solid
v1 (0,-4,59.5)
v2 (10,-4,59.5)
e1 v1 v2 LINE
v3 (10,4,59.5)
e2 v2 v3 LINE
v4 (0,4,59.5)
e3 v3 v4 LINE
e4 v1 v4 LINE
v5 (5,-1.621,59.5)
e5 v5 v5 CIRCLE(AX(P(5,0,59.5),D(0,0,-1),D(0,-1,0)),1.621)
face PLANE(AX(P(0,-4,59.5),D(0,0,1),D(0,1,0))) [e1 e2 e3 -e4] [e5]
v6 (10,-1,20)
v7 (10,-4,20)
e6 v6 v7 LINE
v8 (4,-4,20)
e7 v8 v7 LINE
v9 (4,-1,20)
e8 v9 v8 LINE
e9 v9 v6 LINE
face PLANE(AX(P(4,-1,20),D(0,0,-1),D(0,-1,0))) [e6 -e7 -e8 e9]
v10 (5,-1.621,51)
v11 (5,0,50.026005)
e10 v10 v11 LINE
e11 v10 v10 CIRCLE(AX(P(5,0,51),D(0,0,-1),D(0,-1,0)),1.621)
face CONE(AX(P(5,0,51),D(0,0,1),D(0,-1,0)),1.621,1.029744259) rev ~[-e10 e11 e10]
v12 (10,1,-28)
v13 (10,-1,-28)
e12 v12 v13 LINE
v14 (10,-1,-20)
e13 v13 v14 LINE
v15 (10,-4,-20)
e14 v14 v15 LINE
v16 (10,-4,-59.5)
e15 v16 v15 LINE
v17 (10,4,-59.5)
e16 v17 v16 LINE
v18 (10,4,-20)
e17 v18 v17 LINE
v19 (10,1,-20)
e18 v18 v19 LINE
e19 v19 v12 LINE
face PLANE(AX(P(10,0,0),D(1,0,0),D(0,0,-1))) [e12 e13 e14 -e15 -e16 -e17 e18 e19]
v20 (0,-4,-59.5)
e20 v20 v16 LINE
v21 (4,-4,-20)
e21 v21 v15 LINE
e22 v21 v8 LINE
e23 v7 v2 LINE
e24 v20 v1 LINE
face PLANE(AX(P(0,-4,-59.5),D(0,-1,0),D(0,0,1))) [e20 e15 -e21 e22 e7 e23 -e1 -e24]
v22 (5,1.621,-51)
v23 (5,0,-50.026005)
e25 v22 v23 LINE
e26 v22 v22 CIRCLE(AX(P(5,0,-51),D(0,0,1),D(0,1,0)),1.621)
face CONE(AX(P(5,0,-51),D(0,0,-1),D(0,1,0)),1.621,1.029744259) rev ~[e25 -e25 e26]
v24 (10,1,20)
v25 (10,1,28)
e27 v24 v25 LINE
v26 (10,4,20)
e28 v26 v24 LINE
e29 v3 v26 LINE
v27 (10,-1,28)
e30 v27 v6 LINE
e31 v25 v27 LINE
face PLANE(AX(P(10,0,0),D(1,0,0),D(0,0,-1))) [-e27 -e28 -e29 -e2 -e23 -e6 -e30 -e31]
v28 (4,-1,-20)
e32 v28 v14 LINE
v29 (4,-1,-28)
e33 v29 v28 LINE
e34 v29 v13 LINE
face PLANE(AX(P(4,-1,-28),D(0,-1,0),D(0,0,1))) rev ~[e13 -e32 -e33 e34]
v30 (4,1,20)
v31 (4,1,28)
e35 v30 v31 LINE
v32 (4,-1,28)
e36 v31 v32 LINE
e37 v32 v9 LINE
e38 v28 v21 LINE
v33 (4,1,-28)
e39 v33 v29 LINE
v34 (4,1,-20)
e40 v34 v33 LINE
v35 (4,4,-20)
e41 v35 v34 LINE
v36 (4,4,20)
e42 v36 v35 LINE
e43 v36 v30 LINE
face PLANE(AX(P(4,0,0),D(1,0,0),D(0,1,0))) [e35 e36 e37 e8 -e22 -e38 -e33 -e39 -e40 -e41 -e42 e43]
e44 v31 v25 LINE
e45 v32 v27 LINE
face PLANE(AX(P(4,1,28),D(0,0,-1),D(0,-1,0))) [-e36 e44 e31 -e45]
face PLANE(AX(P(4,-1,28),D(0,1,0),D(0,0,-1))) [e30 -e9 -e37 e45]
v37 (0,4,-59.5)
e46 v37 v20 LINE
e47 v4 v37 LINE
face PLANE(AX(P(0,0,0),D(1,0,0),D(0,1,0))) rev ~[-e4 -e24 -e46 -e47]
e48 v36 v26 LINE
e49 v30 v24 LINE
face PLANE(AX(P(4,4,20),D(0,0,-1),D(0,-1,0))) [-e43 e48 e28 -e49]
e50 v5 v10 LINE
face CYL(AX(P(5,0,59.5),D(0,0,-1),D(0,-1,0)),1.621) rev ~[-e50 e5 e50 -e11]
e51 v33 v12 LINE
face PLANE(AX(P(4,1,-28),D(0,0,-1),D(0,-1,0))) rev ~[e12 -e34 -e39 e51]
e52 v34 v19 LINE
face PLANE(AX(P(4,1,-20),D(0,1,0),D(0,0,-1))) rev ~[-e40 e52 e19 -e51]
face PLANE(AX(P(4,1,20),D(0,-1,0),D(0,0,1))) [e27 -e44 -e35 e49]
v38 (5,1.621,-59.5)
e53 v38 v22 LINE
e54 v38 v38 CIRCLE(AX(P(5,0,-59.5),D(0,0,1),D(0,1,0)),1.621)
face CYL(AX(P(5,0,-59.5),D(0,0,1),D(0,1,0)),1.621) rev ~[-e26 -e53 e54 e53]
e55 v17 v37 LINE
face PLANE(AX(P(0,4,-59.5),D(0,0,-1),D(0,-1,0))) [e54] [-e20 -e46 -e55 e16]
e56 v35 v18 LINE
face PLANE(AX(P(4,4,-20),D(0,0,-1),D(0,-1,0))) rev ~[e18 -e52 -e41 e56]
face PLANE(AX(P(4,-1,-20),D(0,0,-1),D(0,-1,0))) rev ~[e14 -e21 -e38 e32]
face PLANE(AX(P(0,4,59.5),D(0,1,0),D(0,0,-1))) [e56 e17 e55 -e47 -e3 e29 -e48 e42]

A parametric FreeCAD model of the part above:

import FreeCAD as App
import Part
import Sketcher
from FreeCAD import Vector
Q = App.Units.Quantity

doc = App.newDocument("Part")
body = doc.addObject("PartDesign::Body", "Body")

# Sketch on YZ plane
sketch1 = body.newObject("Sketcher::SketchObject", "Sketch")
sketch1.AttachmentSupport = (doc.getObject("YZ_Plane"), [""])
sketch1.MapMode = "FlatFace"
sketch1.addGeometry(Part.LineSegment(Vector(4, 59.5, 0), Vector(-4, 59.5, 0)), False)
sketch1.addGeometry(Part.LineSegment(Vector(-4, 59.5, 0), Vector(-4, -59.5, 0)), False)
sketch1.addGeometry(Part.LineSegment(Vector(-4, -59.5, 0), Vector(4, -59.5, 0)), False)
sketch1.addGeometry(Part.LineSegment(Vector(4, -59.5, 0), Vector(4, 59.5, 0)), False)
sketch1.addConstraint(Sketcher.Constraint("Coincident", 0, 2, 1, 1))
sketch1.addConstraint(Sketcher.Constraint("Coincident", 1, 2, 2, 1))
sketch1.addConstraint(Sketcher.Constraint("Coincident", 2, 2, 3, 1))
sketch1.addConstraint(Sketcher.Constraint("Coincident", 3, 2, 0, 1))
sketch1.addConstraint(Sketcher.Constraint("Horizontal", 0))
sketch1.addConstraint(Sketcher.Constraint("Vertical", 1))
sketch1.addConstraint(Sketcher.Constraint("Horizontal", 2))
sketch1.addConstraint(Sketcher.Constraint("Vertical", 3))
sketch1.addConstraint(Sketcher.Constraint("Symmetric", 0, 2, 2, 2, -1, 1))
sketch1.addConstraint(Sketcher.Constraint("DistanceX", 0, 2, 0, 1, Q("8 mm")))
sketch1.addConstraint(Sketcher.Constraint("DistanceY", 1, 2, 1, 1, Q("119 mm")))
pad1 = body.newObject("PartDesign::Pad", "Pad")
pad1.Profile = sketch1
pad1.Length = 4

# Sketch on YZ plane
sketch2 = body.newObject("Sketcher::SketchObject", "Sketch001")
sketch2.AttachmentSupport = (doc.getObject("YZ_Plane"), [""])
sketch2.MapMode = "FlatFace"
sketch2.AttachmentOffset = App.Placement(Vector(0, 0, 4), App.Rotation())
sketch2.addGeometry(Part.LineSegment(Vector(4, 20, 0), Vector(4, 59.5, 0)), False)
sketch2.addGeometry(Part.LineSegment(Vector(4, 59.5, 0), Vector(-4, 59.5, 0)), False)
sketch2.addGeometry(Part.LineSegment(Vector(-4, 59.5, 0), Vector(-4, 20, 0)), False)
sketch2.addGeometry(Part.LineSegment(Vector(-4, 20, 0), Vector(-1, 20, 0)), False)
sketch2.addGeometry(Part.LineSegment(Vector(-1, 20, 0), Vector(-1, 28, 0)), False)
sketch2.addGeometry(Part.LineSegment(Vector(-1, 28, 0), Vector(1, 28, 0)), False)
sketch2.addGeometry(Part.LineSegment(Vector(1, 28, 0), Vector(1, 20, 0)), False)
sketch2.addGeometry(Part.LineSegment(Vector(1, 20, 0), Vector(4, 20, 0)), False)
sketch2.addGeometry(Part.LineSegment(Vector(4, -59.5, 0), Vector(4, -20, 0)), False)
sketch2.addGeometry(Part.LineSegment(Vector(4, -20, 0), Vector(1, -20, 0)), False)
sketch2.addGeometry(Part.LineSegment(Vector(1, -20, 0), Vector(1, -28, 0)), False)
sketch2.addGeometry(Part.LineSegment(Vector(1, -28, 0), Vector(-1, -28, 0)), False)
sketch2.addGeometry(Part.LineSegment(Vector(-1, -28, 0), Vector(-1, -20, 0)), False)
sketch2.addGeometry(Part.LineSegment(Vector(-1, -20, 0), Vector(-4, -20, 0)), False)
sketch2.addGeometry(Part.LineSegment(Vector(-4, -20, 0), Vector(-4, -59.5, 0)), False)
sketch2.addGeometry(Part.LineSegment(Vector(-4, -59.5, 0), Vector(4, -59.5, 0)), False)
sketch2.addConstraint(Sketcher.Constraint("Coincident", 0, 2, 1, 1))
sketch2.addConstraint(Sketcher.Constraint("Coincident", 1, 2, 2, 1))
sketch2.addConstraint(Sketcher.Constraint("Coincident", 2, 2, 3, 1))
sketch2.addConstraint(Sketcher.Constraint("Coincident", 3, 2, 4, 1))
sketch2.addConstraint(Sketcher.Constraint("Coincident", 4, 2, 5, 1))
sketch2.addConstraint(Sketcher.Constraint("Coincident", 5, 2, 6, 1))
sketch2.addConstraint(Sketcher.Constraint("Coincident", 6, 2, 7, 1))
sketch2.addConstraint(Sketcher.Constraint("Coincident", 7, 2, 0, 1))
sketch2.addConstraint(Sketcher.Constraint("Coincident", 8, 2, 9, 1))
sketch2.addConstraint(Sketcher.Constraint("Coincident", 9, 2, 10, 1))
sketch2.addConstraint(Sketcher.Constraint("Coincident", 10, 2, 11, 1))
sketch2.addConstraint(Sketcher.Constraint("Coincident", 11, 2, 12, 1))
sketch2.addConstraint(Sketcher.Constraint("Coincident", 12, 2, 13, 1))
sketch2.addConstraint(Sketcher.Constraint("Coincident", 13, 2, 14, 1))
sketch2.addConstraint(Sketcher.Constraint("Coincident", 14, 2, 15, 1))
sketch2.addConstraint(Sketcher.Constraint("Coincident", 15, 2, 8, 1))
sketch2.addConstraint(Sketcher.Constraint("Vertical", 0))
sketch2.addConstraint(Sketcher.Constraint("Horizontal", 1))
sketch2.addConstraint(Sketcher.Constraint("Vertical", 2))
sketch2.addConstraint(Sketcher.Constraint("Horizontal", 3))
sketch2.addConstraint(Sketcher.Constraint("Vertical", 4))
sketch2.addConstraint(Sketcher.Constraint("Horizontal", 5))
sketch2.addConstraint(Sketcher.Constraint("Vertical", 6))
sketch2.addConstraint(Sketcher.Constraint("Horizontal", 7))
sketch2.addConstraint(Sketcher.Constraint("Vertical", 8))
sketch2.addConstraint(Sketcher.Constraint("Horizontal", 9))
sketch2.addConstraint(Sketcher.Constraint("Vertical", 10))
sketch2.addConstraint(Sketcher.Constraint("Horizontal", 11))
sketch2.addConstraint(Sketcher.Constraint("Vertical", 12))
sketch2.addConstraint(Sketcher.Constraint("Horizontal", 13))
sketch2.addConstraint(Sketcher.Constraint("Vertical", 14))
sketch2.addConstraint(Sketcher.Constraint("Horizontal", 15))
sketch2.addConstraint(Sketcher.Constraint("Symmetric", 2, 2, 8, 2, -1, 1))
sketch2.addConstraint(Sketcher.Constraint("Symmetric", 4, 2, 10, 2, -1, 1))
sketch2.addConstraint(Sketcher.Constraint("Symmetric", 6, 2, 12, 2, -1, 1))
sketch2.addConstraint(Sketcher.Constraint("Symmetric", 0, 2, 14, 2, -1, 1))
sketch2.addConstraint(Sketcher.Constraint("Symmetric", 3, 2, 6, 2, -2))
sketch2.addConstraint(Sketcher.Constraint("Vertical", 7, 2, 8, 2))
sketch2.addConstraint(Sketcher.Constraint("Equal", 15, 4))
sketch2.addConstraint(Sketcher.Constraint("DistanceX", 5, 1, 5, 2, Q("2 mm")))
sketch2.addConstraint(Sketcher.Constraint("DistanceY", -1, 1, 2, 2, Q("20 mm")))
sketch2.addConstraint(Sketcher.Constraint("DistanceY", -1, 1, 4, 2, Q("28 mm")))
sketch2.addConstraint(Sketcher.Constraint("DistanceY", 0, 1, 0, 2, Q("39.5 mm")))
pad2 = body.newObject("PartDesign::Pad", "Pad001")
pad2.Profile = sketch2
pad2.Length = 6

# Sketch on XY plane
sketch3 = body.newObject("Sketcher::SketchObject", "Sketch002")
sketch3.AttachmentSupport = (doc.getObject("XY_Plane"), [""])
sketch3.MapMode = "FlatFace"
sketch3.AttachmentOffset = App.Placement(Vector(0, 0, 59.5), App.Rotation())
sketch3.addGeometry(Part.Circle(Vector(5, 0, 0), Vector(0, 0, 1), 1.621), False)
sketch3.addConstraint(Sketcher.Constraint("PointOnObject", 0, 3, -1))
sketch3.addConstraint(Sketcher.Constraint("Diameter", 0, Q("3.242 mm")))
sketch3.addConstraint(Sketcher.Constraint("DistanceX", -1, 1, 0, 3, Q("5 mm")))
doc.recompute()
hole = body.newObject("PartDesign::Hole", "Hole")
hole.Profile = sketch3
hole.ThreadType = "None"
hole.Diameter = 3.242
hole.DepthType = "Dimension"
hole.Depth = 8.5
hole.DrillPoint = "Angled"
hole.DrillPointAngle = 118

# Sketch on XY plane
sketch4 = body.newObject("Sketcher::SketchObject", "Sketch003")
sketch4.AttachmentSupport = (doc.getObject("XY_Plane"), [""])
sketch4.MapMode = "FlatFace"
sketch4.AttachmentOffset = App.Placement(Vector(0, 0, -59.5), App.Rotation())
sketch4.addGeometry(Part.Circle(Vector(5, 0, 0), Vector(0, 0, 1), 1.621), False)
sketch4.addConstraint(Sketcher.Constraint("PointOnObject", 0, 3, -1))
sketch4.addConstraint(Sketcher.Constraint("Diameter", 0, Q("3.242 mm")))
sketch4.addConstraint(Sketcher.Constraint("DistanceX", -1, 1, 0, 3, Q("5 mm")))
doc.recompute()
hole2 = body.newObject("PartDesign::Hole", "Hole001")
hole2.Profile = sketch4
hole2.ThreadType = "None"
hole2.Diameter = 3.242
hole2.DepthType = "Dimension"
hole2.Depth = 8.5
hole2.DrillPoint = "Angled"
hole2.DrillPointAngle = 118
hole2.Reversed = True

doc.recompute()
